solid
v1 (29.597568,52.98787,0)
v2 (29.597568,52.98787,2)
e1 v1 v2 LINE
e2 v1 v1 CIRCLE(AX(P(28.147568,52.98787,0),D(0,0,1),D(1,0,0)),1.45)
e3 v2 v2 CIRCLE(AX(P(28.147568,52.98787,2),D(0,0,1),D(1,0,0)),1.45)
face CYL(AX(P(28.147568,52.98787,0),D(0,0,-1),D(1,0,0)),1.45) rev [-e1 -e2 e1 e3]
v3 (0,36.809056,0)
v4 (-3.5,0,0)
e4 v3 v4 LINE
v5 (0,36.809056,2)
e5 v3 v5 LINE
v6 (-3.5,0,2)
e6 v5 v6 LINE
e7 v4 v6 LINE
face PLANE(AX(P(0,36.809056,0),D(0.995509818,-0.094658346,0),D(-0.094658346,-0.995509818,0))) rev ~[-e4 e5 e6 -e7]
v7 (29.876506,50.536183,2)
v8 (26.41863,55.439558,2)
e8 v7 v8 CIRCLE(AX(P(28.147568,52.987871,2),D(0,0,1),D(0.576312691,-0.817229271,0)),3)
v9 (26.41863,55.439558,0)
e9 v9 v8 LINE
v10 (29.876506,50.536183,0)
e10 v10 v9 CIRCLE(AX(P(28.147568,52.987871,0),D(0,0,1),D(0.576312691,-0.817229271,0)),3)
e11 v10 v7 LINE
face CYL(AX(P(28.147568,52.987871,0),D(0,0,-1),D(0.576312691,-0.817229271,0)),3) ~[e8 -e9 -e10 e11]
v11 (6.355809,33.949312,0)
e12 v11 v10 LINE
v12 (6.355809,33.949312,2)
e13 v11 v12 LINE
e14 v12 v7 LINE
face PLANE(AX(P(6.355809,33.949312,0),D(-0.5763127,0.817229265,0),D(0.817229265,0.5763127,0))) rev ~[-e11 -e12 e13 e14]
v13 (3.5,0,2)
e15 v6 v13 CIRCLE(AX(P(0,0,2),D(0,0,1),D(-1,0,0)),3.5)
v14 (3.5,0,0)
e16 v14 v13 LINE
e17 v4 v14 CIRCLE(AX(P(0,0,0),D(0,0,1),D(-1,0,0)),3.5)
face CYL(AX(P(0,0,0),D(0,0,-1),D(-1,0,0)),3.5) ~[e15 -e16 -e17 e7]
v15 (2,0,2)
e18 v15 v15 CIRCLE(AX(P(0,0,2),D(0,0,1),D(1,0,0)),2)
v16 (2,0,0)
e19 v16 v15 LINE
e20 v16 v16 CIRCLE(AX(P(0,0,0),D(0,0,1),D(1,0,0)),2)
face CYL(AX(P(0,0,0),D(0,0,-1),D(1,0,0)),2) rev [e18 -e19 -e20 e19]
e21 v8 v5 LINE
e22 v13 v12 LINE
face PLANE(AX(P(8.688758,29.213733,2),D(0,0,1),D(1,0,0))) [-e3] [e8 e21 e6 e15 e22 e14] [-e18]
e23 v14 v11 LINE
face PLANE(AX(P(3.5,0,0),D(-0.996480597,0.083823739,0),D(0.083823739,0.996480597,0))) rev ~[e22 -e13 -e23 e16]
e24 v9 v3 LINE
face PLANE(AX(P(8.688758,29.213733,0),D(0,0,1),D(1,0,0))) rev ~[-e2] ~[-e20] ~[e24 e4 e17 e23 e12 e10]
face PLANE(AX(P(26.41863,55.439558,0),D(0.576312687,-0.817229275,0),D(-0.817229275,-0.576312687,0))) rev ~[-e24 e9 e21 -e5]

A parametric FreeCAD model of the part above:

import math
import FreeCAD as App
import Part
import Sketcher
from FreeCAD import Vector
Q = App.Units.Quantity

doc = App.newDocument("Part")
body = doc.addObject("PartDesign::Body", "Body")

# Sketch on XY plane
sketch1 = doc.addObject("Sketcher::SketchObject", "Sketch")
body.addObject(sketch1)
sketch1.AttachmentSupport = (doc.XY_Plane, [""])
sketch1.MapMode = "FlatFace"
sketch1.addGeometry(Part.ArcOfCircle(Part.Circle(Vector(0, 0, 0), Vector(0, 0, 1), 3.5), math.radians(180), math.radians(360)), False)
sketch1.addGeometry(Part.LineSegment(Vector(3.5, 0, 0), Vector(6.4, 33.9, 0)), False)
sketch1.addGeometry(Part.LineSegment(Vector(6.4, 33.9, 0), Vector(29.9, 50.5, 0)), False)
sketch1.addGeometry(Part.ArcOfCircle(Part.Circle(Vector(28.1, 53, 0), Vector(0, 0, 1), 3), math.radians(-55), math.radians(125)), False)
sketch1.addGeometry(Part.LineSegment(Vector(26.4, 55.4, 0), Vector(0, 36.8, 0)), False)
sketch1.addGeometry(Part.LineSegment(Vector(0, 36.8, 0), Vector(-3.5, 0, 0)), False)
sketch1.addGeometry(Part.Circle(Vector(0, 0, 0), Vector(0, 0, 1), 2), False)
sketch1.addGeometry(Part.Circle(Vector(28.1, 53, 0), Vector(0, 0, 1), 1.4), False)
sketch1.addConstraint(Sketcher.Constraint("Coincident", 0, 2, 1, 1))
sketch1.addConstraint(Sketcher.Constraint("Coincident", 1, 2, 2, 1))
sketch1.addConstraint(Sketcher.Constraint("Tangent", 2, 2, 3, 1))
sketch1.addConstraint(Sketcher.Constraint("Tangent", 3, 2, 4, 1))
sketch1.addConstraint(Sketcher.Constraint("Coincident", 4, 2, 5, 1))
sketch1.addConstraint(Sketcher.Constraint("Coincident", 5, 2, 0, 1))
sketch1.addConstraint(Sketcher.Constraint("Coincident", 0, 3, -1, 1))
sketch1.addConstraint(Sketcher.Constraint("Coincident", 6, 3, -1, 1))
sketch1.addConstraint(Sketcher.Constraint("Coincident", 7, 3, 3, 3))
sketch1.addConstraint(Sketcher.Constraint("PointOnObject", 0, 2, -1))
sketch1.addConstraint(Sketcher.Constraint("PointOnObject", 4, 2, -2))
sketch1.addConstraint(Sketcher.Constraint("PointOnObject", 5, 2, -1))
sketch1.addConstraint(Sketcher.Constraint("Parallel", 2, 4))
sketch1.addConstraint(Sketcher.Constraint("Diameter", 6, Q("4 mm")))
sketch1.addConstraint(Sketcher.Constraint("Radius", 3, Q("3 mm")))
sketch1.addConstraint(Sketcher.Constraint("Diameter", 7, Q("2.9 mm")))
sketch1.addConstraint(Sketcher.Constraint("Radius", 0, Q("3.5 mm")))
sketch1.addConstraint(Sketcher.Constraint("DistanceY", 4, 2, 3, 2, Q("18.630502 mm")))
sketch1.addConstraint(Sketcher.Constraint("Distance", 5, Q("36.975081 mm")))
sketch1.addConstraint(Sketcher.Constraint("DistanceX", -1, 1, 3, 3, Q("28.147568 mm")))
sketch1.addConstraint(Sketcher.Constraint("DistanceX", -1, 1, 1, 2, Q("6.355809 mm")))
pad1 = doc.addObject("PartDesign::Pad", "Pad")
body.addObject(pad1)
pad1.Profile = sketch1
pad1.Length = 2

doc.recompute()
